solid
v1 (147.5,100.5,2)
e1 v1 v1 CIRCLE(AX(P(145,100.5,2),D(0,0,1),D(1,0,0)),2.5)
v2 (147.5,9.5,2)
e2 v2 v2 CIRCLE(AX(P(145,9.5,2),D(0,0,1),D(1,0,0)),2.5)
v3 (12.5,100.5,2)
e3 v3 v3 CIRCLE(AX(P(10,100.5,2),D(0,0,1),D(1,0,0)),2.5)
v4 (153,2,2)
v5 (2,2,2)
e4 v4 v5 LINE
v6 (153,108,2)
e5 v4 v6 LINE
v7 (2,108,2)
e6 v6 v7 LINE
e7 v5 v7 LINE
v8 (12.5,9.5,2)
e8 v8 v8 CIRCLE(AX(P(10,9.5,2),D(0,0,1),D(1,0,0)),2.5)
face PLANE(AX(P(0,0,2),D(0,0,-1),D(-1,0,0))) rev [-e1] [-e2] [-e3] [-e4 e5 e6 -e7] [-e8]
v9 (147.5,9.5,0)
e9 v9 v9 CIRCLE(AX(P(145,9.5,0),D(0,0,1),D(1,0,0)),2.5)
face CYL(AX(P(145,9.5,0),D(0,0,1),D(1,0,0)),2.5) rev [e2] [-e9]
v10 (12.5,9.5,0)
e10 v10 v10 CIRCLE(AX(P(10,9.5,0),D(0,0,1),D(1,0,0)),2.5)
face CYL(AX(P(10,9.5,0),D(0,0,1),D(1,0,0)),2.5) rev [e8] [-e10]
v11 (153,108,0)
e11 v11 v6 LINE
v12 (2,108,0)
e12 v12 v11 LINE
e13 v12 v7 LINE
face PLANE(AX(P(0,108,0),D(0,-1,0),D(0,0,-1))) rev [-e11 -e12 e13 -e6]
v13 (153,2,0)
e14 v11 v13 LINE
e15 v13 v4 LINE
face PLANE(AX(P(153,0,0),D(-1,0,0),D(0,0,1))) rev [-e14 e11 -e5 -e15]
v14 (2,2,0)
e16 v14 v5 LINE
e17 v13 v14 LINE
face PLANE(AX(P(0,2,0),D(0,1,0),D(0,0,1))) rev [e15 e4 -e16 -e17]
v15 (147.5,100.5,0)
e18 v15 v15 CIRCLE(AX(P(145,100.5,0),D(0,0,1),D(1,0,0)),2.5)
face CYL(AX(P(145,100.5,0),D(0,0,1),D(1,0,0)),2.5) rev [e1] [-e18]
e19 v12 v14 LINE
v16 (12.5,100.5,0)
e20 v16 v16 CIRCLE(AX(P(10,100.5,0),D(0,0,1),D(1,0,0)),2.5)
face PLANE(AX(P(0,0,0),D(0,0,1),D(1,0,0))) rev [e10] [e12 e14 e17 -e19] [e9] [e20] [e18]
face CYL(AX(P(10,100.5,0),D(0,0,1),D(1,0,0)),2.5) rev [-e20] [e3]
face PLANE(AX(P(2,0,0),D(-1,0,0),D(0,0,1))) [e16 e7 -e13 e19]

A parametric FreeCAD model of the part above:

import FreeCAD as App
import Part
import Sketcher

V = App.Vector
Q = App.Units.Quantity


def add_polygon(sketch, points):
    """Adds a closed chain of lines whose ends are joined by coincident constraints."""
    first, n = sketch.GeometryCount, len(points)
    for a, b in zip(points, points[1:] + points[:1]):
        sketch.addGeometry(Part.LineSegment(App.Vector(*a, 0), App.Vector(*b, 0)), False)
    for i in range(n):
        sketch.addConstraint(Sketcher.Constraint("Coincident", first + i, 2, first + (i + 1) % n, 1))

doc = App.newDocument("Part")
body = doc.addObject("PartDesign::Body", "Body")

# Sketch on XY plane
sketch1 = body.newObject("Sketcher::SketchObject", "Sketch")
sketch1.AttachmentSupport = (doc.getObject("XY_Plane"), [""])
sketch1.MapMode = "FlatFace"
add_polygon(sketch1, [(0, 110), (0, 0), (155, 0), (155, 110)])  # lines 0-3
sketch1.addConstraint(Sketcher.Constraint("Vertical", 0))
sketch1.addConstraint(Sketcher.Constraint("Horizontal", 1))
sketch1.addConstraint(Sketcher.Constraint("Vertical", 2))
sketch1.addConstraint(Sketcher.Constraint("Horizontal", 3))
sketch1.addConstraint(Sketcher.Constraint("Coincident", 0, 2, -1, 1))
sketch1.addConstraint(Sketcher.Constraint("DistanceX", 1, 1, 1, 2, Q("155 mm")))
sketch1.addConstraint(Sketcher.Constraint("DistanceY", 0, 2, 0, 1, Q("110 mm")))
pad1 = body.newObject("PartDesign::Pad", "Pad")
pad1.Profile = sketch1
pad1.Length = 80

# Sketch on XY plane
sketch2 = body.newObject("Sketcher::SketchObject", "Sketch001")
sketch2.AttachmentSupport = (doc.getObject("XY_Plane"), [""])
sketch2.MapMode = "FlatFace"
sketch2.AttachmentOffset = App.Placement(V(0, 0, 80), App.Rotation())
add_polygon(sketch2, [(2, 108), (2, 2), (153, 2), (153, 108)])  # lines 0-3
sketch2.addConstraint(Sketcher.Constraint("Vertical", 0))
sketch2.addConstraint(Sketcher.Constraint("Horizontal", 1))
sketch2.addConstraint(Sketcher.Constraint("Vertical", 2))
sketch2.addConstraint(Sketcher.Constraint("Horizontal", 3))
sketch2.addConstraint(Sketcher.Constraint("DistanceX", 1, 1, 1, 2, Q("151 mm")))
sketch2.addConstraint(Sketcher.Constraint("DistanceY", 0, 2, 0, 1, Q("106 mm")))
sketch2.addConstraint(Sketcher.Constraint("DistanceX", -1, 1, 0, 2, Q("2 mm")))
sketch2.addConstraint(Sketcher.Constraint("DistanceY", -1, 1, 0, 2, Q("2 mm")))
pocket1 = body.newObject("PartDesign::Pocket", "Pocket")
pocket1.Profile = sketch2
pocket1.Length = 78

# Sketch on XY plane
sketch3 = body.newObject("Sketcher::SketchObject", "Sketch002")
sketch3.AttachmentSupport = (doc.getObject("XY_Plane"), [""])
sketch3.MapMode = "FlatFace"
sketch3.AttachmentOffset = App.Placement(V(0, 0, 2), App.Rotation())
sketch3.addGeometry(Part.Circle(V(145, 100.5, 0), V(0, 0, 1), 2.5), False)
sketch3.addGeometry(Part.Circle(V(145, 9.5, 0), V(0, 0, 1), 2.5), False)
sketch3.addGeometry(Part.Circle(V(10, 9.5, 0), V(0, 0, 1), 2.5), False)
sketch3.addGeometry(Part.Circle(V(10, 100.5, 0), V(0, 0, 1), 2.5), False)
sketch3.addConstraint(Sketcher.Constraint("Equal", 0, 1))
sketch3.addConstraint(Sketcher.Constraint("Equal", 1, 2))
sketch3.addConstraint(Sketcher.Constraint("Equal", 2, 3))
sketch3.addConstraint(Sketcher.Constraint("Horizontal", 1, 3, 2, 3))
sketch3.addConstraint(Sketcher.Constraint("Horizontal", 0, 3, 3, 3))
sketch3.addConstraint(Sketcher.Constraint("Vertical", 0, 3, 1, 3))
sketch3.addConstraint(Sketcher.Constraint("Vertical", 2, 3, 3, 3))
sketch3.addConstraint(Sketcher.Constraint("Diameter", 0, Q("5 mm")))
sketch3.addConstraint(Sketcher.Constraint("DistanceX", -1, 1, 0, 3, Q("145 mm")))
sketch3.addConstraint(Sketcher.Constraint("DistanceX", -1, 1, 2, 3, Q("10 mm")))
sketch3.addConstraint(Sketcher.Constraint("DistanceY", 1, 3, 0, 3, Q("91 mm")))
sketch3.addConstraint(Sketcher.Constraint("DistanceY", -1, 1, 0, 3, Q("100.5 mm")))
pocket2 = body.newObject("PartDesign::Pocket", "Pocket001")
pocket2.Profile = sketch3
pocket2.Length = 2

# Sketch on XZ plane
sketch4 = body.newObject("Sketcher::SketchObject", "Sketch003")
sketch4.AttachmentSupport = (doc.getObject("XZ_Plane"), [""])
sketch4.MapMode = "FlatFace"
sketch4.AttachmentOffset = App.Placement(V(0, 0, -110), App.Rotation())
sketch4.addGeometry(Part.Circle(V(44.5, 20.1, 0), V(0, 0, 1), 1.6), False)
sketch4.addGeometry(Part.Circle(V(95.3, 17.1, 0), V(0, 0, 1), 1.6), False)
sketch4.addGeometry(Part.Circle(V(95.3, 62.9, 0), V(0, 0, 1), 1.6), False)
sketch4.addGeometry(Part.Circle(V(44.5, 47.6, 0), V(0, 0, 1), 1.6), False)
sketch4.addConstraint(Sketcher.Constraint("Equal", 0, 1))
sketch4.addConstraint(Sketcher.Constraint("Equal", 1, 2))
sketch4.addConstraint(Sketcher.Constraint("Equal", 2, 3))
sketch4.addConstraint(Sketcher.Constraint("Vertical", 1, 3, 2, 3))
sketch4.addConstraint(Sketcher.Constraint("Vertical", 0, 3, 3, 3))
sketch4.addConstraint(Sketcher.Constraint("Diameter", 0, Q("3.2 mm")))
sketch4.addConstraint(Sketcher.Constraint("DistanceX", 0, 3, 1, 3, Q("50.8 mm")))
sketch4.addConstraint(Sketcher.Constraint("DistanceX", -1, 1, 0, 3, Q("44.48 mm")))
sketch4.addConstraint(Sketcher.Constraint("DistanceY", -1, 1, 1, 3, Q("17.14 mm")))
sketch4.addConstraint(Sketcher.Constraint("DistanceY", -1, 1, 2, 3, Q("62.86 mm")))
sketch4.addConstraint(Sketcher.Constraint("DistanceY", -1, 1, 3, 3, Q("47.62 mm")))
sketch4.addConstraint(Sketcher.Constraint("DistanceY", -1, 1, 0, 3, Q("20.144504 mm")))
pocket3 = body.newObject("PartDesign::Pocket", "Pocket002")
pocket3.Profile = sketch4
pocket3.Length = 2
pocket3.Reversed = True

# Sketch on YZ plane
sketch5 = body.newObject("Sketcher::SketchObject", "Sketch004")
sketch5.AttachmentSupport = (doc.getObject("YZ_Plane"), [""])
sketch5.MapMode = "FlatFace"
sketch5.AttachmentOffset = App.Placement(V(0, 0, 155), App.Rotation())
add_polygon(sketch5, [(106, 54), (59, 54), (59, 26), (106, 26)])  # lines 0-3
sketch5.addConstraint(Sketcher.Constraint("Horizontal", 0))
sketch5.addConstraint(Sketcher.Constraint("Vertical", 1))
sketch5.addConstraint(Sketcher.Constraint("Horizontal", 2))
sketch5.addConstraint(Sketcher.Constraint("Vertical", 3))
sketch5.addConstraint(Sketcher.Constraint("DistanceX", 0, 2, 0, 1, Q("46.8 mm")))
sketch5.addConstraint(Sketcher.Constraint("DistanceY", 1, 2, 1, 1, Q("27.5 mm")))
sketch5.addConstraint(Sketcher.Constraint("DistanceX", -1, 1, 0, 2, Q("59.1 mm")))
sketch5.addConstraint(Sketcher.Constraint("DistanceY", -1, 1, 0, 2, Q("53.75 mm")))
pocket4 = body.newObject("PartDesign::Pocket", "Pocket003")
pocket4.Profile = sketch5
pocket4.Length = 2

# Sketch on YZ plane
sketch6 = body.newObject("Sketcher::SketchObject", "Sketch005")
sketch6.AttachmentSupport = (doc.getObject("YZ_Plane"), [""])
sketch6.MapMode = "FlatFace"
sketch6.AttachmentOffset = App.Placement(V(0, 0, 155), App.Rotation())
add_polygon(sketch6, [(55, 70), (2, 70), (2, 66), (55, 66)])  # lines 0-3
add_polygon(sketch6, [(55, 78), (2, 78), (2, 74), (55, 74)])  # lines 4-7
add_polygon(sketch6, [(55, 62), (2, 62), (2, 58), (55, 58)])  # lines 8-11
add_polygon(sketch6, [(55, 54), (2, 54), (2, 50), (55, 50)])  # lines 12-15
add_polygon(sketch6, [(55, 46), (2, 46), (2, 42), (55, 42)])  # lines 16-19
add_polygon(sketch6, [(55, 38), (2, 38), (2, 34), (55, 34)])  # lines 20-23
add_polygon(sketch6, [(55, 30), (2, 30), (2, 26), (55, 26)])  # lines 24-27
add_polygon(sketch6, [(55, 22), (2, 22), (2, 18), (55, 18)])  # lines 28-31
add_polygon(sketch6, [(55, 14), (2, 14), (2, 10), (55, 10)])  # lines 32-35
add_polygon(sketch6, [(55, 6), (2, 6), (2, 2), (55, 2)])  # lines 36-39
sketch6.addConstraint(Sketcher.Constraint("Horizontal", 0))
sketch6.addConstraint(Sketcher.Constraint("Vertical", 1))
sketch6.addConstraint(Sketcher.Constraint("Horizontal", 2))
sketch6.addConstraint(Sketcher.Constraint("Vertical", 3))
sketch6.addConstraint(Sketcher.Constraint("Horizontal", 4))
sketch6.addConstraint(Sketcher.Constraint("Vertical", 5))
sketch6.addConstraint(Sketcher.Constraint("Horizontal", 6))
sketch6.addConstraint(Sketcher.Constraint("Vertical", 7))
sketch6.addConstraint(Sketcher.Constraint("Horizontal", 8))
sketch6.addConstraint(Sketcher.Constraint("Vertical", 9))
sketch6.addConstraint(Sketcher.Constraint("Horizontal", 10))
sketch6.addConstraint(Sketcher.Constraint("Vertical", 11))
sketch6.addConstraint(Sketcher.Constraint("Horizontal", 12))
sketch6.addConstraint(Sketcher.Constraint("Vertical", 13))
sketch6.addConstraint(Sketcher.Constraint("Horizontal", 14))
sketch6.addConstraint(Sketcher.Constraint("Vertical", 15))
sketch6.addConstraint(Sketcher.Constraint("Horizontal", 16))
sketch6.addConstraint(Sketcher.Constraint("Vertical", 17))
sketch6.addConstraint(Sketcher.Constraint("Horizontal", 18))
sketch6.addConstraint(Sketcher.Constraint("Vertical", 19))
sketch6.addConstraint(Sketcher.Constraint("Horizontal", 20))
sketch6.addConstraint(Sketcher.Constraint("Vertical", 21))
sketch6.addConstraint(Sketcher.Constraint("Horizontal", 22))
sketch6.addConstraint(Sketcher.Constraint("Vertical", 23))
sketch6.addConstraint(Sketcher.Constraint("Horizontal", 24))
sketch6.addConstraint(Sketcher.Constraint("Vertical", 25))
sketch6.addConstraint(Sketcher.Constraint("Horizontal", 26))
sketch6.addConstraint(Sketcher.Constraint("Vertical", 27))
sketch6.addConstraint(Sketcher.Constraint("Horizontal", 28))
sketch6.addConstraint(Sketcher.Constraint("Vertical", 29))
sketch6.addConstraint(Sketcher.Constraint("Horizontal", 30))
sketch6.addConstraint(Sketcher.Constraint("Vertical", 31))
sketch6.addConstraint(Sketcher.Constraint("Horizontal", 32))
sketch6.addConstraint(Sketcher.Constraint("Vertical", 33))
sketch6.addConstraint(Sketcher.Constraint("Horizontal", 34))
sketch6.addConstraint(Sketcher.Constraint("Vertical", 35))
sketch6.addConstraint(Sketcher.Constraint("Horizontal", 36))
sketch6.addConstraint(Sketcher.Constraint("Vertical", 37))
sketch6.addConstraint(Sketcher.Constraint("Horizontal", 38))
sketch6.addConstraint(Sketcher.Constraint("Vertical", 39))
sketch6.addConstraint(Sketcher.Constraint("Vertical", 1, 2, 4, 2))
sketch6.addConstraint(Sketcher.Constraint("Vertical", 3, 2, 6, 2))
sketch6.addConstraint(Sketcher.Constraint("Vertical", 5, 2, 8, 2))
sketch6.addConstraint(Sketcher.Constraint("Vertical", 7, 2, 10, 2))
sketch6.addConstraint(Sketcher.Constraint("Vertical", 9, 2, 12, 2))
sketch6.addConstraint(Sketcher.Constraint("Vertical", 11, 2, 14, 2))
sketch6.addConstraint(Sketcher.Constraint("Vertical", 13, 2, 16, 2))
sketch6.addConstraint(Sketcher.Constraint("Vertical", 15, 2, 18, 2))
sketch6.addConstraint(Sketcher.Constraint("Vertical", 17, 2, 20, 2))
sketch6.addConstraint(Sketcher.Constraint("Vertical", 19, 2, 22, 2))
sketch6.addConstraint(Sketcher.Constraint("Vertical", 21, 2, 24, 2))
sketch6.addConstraint(Sketcher.Constraint("Vertical", 23, 2, 26, 2))
sketch6.addConstraint(Sketcher.Constraint("Vertical", 25, 2, 28, 2))
sketch6.addConstraint(Sketcher.Constraint("Vertical", 27, 2, 30, 2))
sketch6.addConstraint(Sketcher.Constraint("Vertical", 29, 2, 32, 2))
sketch6.addConstraint(Sketcher.Constraint("Vertical", 31, 2, 34, 2))
sketch6.addConstraint(Sketcher.Constraint("Vertical", 33, 2, 36, 2))
sketch6.addConstraint(Sketcher.Constraint("Vertical", 35, 2, 38, 2))
sketch6.addConstraint(Sketcher.Constraint("Equal", 3, 5))
sketch6.addConstraint(Sketcher.Constraint("Equal", 7, 9))
sketch6.addConstraint(Sketcher.Constraint("Equal", 11, 13))
sketch6.addConstraint(Sketcher.Constraint("Equal", 15, 17))
sketch6.addConstraint(Sketcher.Constraint("Equal", 19, 21))
sketch6.addConstraint(Sketcher.Constraint("Equal", 23, 25))
sketch6.addConstraint(Sketcher.Constraint("Equal", 27, 29))
sketch6.addConstraint(Sketcher.Constraint("Equal", 31, 33))
sketch6.addConstraint(Sketcher.Constraint("Equal", 35, 37))
sketch6.addConstraint(Sketcher.Constraint("DistanceX", 0, 2, 0, 1, Q("53 mm")))
sketch6.addConstraint(Sketcher.Constraint("DistanceY", 1, 2, 1, 1, Q("4 mm")))
sketch6.addConstraint(Sketcher.Constraint("DistanceX", -1, 1, 0, 2, Q("2 mm")))
sketch6.addConstraint(Sketcher.Constraint("DistanceY", -1, 1, 0, 2, Q("70 mm")))
sketch6.addConstraint(Sketcher.Constraint("DistanceY", -1, 1, 4, 2, Q("78 mm")))
sketch6.addConstraint(Sketcher.Constraint("DistanceY", -1, 1, 8, 2, Q("62 mm")))
sketch6.addConstraint(Sketcher.Constraint("DistanceY", -1, 1, 12, 2, Q("54 mm")))
sketch6.addConstraint(Sketcher.Constraint("DistanceY", -1, 1, 16, 2, Q("46 mm")))
sketch6.addConstraint(Sketcher.Constraint("DistanceY", -1, 1, 20, 2, Q("38 mm")))
sketch6.addConstraint(Sketcher.Constraint("DistanceY", -1, 1, 24, 2, Q("30 mm")))
sketch6.addConstraint(Sketcher.Constraint("DistanceY", -1, 1, 28, 2, Q("22 mm")))
sketch6.addConstraint(Sketcher.Constraint("DistanceY", -1, 1, 32, 2, Q("14 mm")))
sketch6.addConstraint(Sketcher.Constraint("DistanceY", -1, 1, 36, 2, Q("6 mm")))
pocket5 = body.newObject("PartDesign::Pocket", "Pocket004")
pocket5.Profile = sketch6
pocket5.Length = 2

# Sketch on XZ plane
sketch7 = body.newObject("Sketcher::SketchObject", "Sketch006")
sketch7.AttachmentSupport = (doc.getObject("XZ_Plane"), [""])
sketch7.MapMode = "FlatFace"
sketch7.AttachmentOffset = App.Placement(V(0, 0, -110), App.Rotation())
add_polygon(sketch7, [(113, 12), (113, 26), (127, 26), (127, 12)])  # lines 0-3
sketch7.addConstraint(Sketcher.Constraint("Vertical", 0))
sketch7.addConstraint(Sketcher.Constraint("Horizontal", 1))
sketch7.addConstraint(Sketcher.Constraint("Vertical", 2))
sketch7.addConstraint(Sketcher.Constraint("Horizontal", 3))
sketch7.addConstraint(Sketcher.Constraint("Equal", 3, 0))
sketch7.addConstraint(Sketcher.Constraint("DistanceX", 1, 1, 1, 2, Q("14 mm")))
sketch7.addConstraint(Sketcher.Constraint("DistanceX", -1, 1, 0, 2, Q("113 mm")))
sketch7.addConstraint(Sketcher.Constraint("DistanceY", -1, 1, 0, 2, Q("26 mm")))
pocket6 = body.newObject("PartDesign::Pocket", "Pocket005")
pocket6.Profile = sketch7
pocket6.Length = 2
pocket6.Reversed = True

# Sketch on YZ plane
sketch8 = body.newObject("Sketcher::SketchObject", "Sketch007")
sketch8.AttachmentSupport = (doc.getObject("YZ_Plane"), [""])
sketch8.MapMode = "FlatFace"
add_polygon(sketch8, [(90.6, 45.4), (19.4, 45.4), (19.4, 70.6), (90.6, 70.6)])  # lines 0-3
sketch8.addGeometry(Part.Circle(V(92.5, 42.5, 0), V(0, 0, 1), 1.2), False)  # 4
sketch8.addGeometry(Part.Circle(V(92.5, 73.5, 0), V(0, 0, 1), 1.2), False)  # 5
sketch8.addGeometry(Part.Circle(V(17.5, 42.5, 0), V(0, 0, 1), 1.2), False)  # 6
sketch8.addGeometry(Part.Circle(V(17.5, 73.5, 0), V(0, 0, 1), 1.2), False)  # 7
sketch8.addConstraint(Sketcher.Constraint("Horizontal", 0))
sketch8.addConstraint(Sketcher.Constraint("Vertical", 1))
sketch8.addConstraint(Sketcher.Constraint("Horizontal", 2))
sketch8.addConstraint(Sketcher.Constraint("Vertical", 3))
sketch8.addConstraint(Sketcher.Constraint("Equal", 4, 5))
sketch8.addConstraint(Sketcher.Constraint("Equal", 5, 6))
sketch8.addConstraint(Sketcher.Constraint("Equal", 6, 7))
sketch8.addConstraint(Sketcher.Constraint("Horizontal", 4, 3, 6, 3))
sketch8.addConstraint(Sketcher.Constraint("Horizontal", 5, 3, 7, 3))
sketch8.addConstraint(Sketcher.Constraint("Vertical", 4, 3, 5, 3))
sketch8.addConstraint(Sketcher.Constraint("Vertical", 6, 3, 7, 3))
sketch8.addConstraint(Sketcher.Constraint("Diameter", 4, Q("2.5 mm")))
sketch8.addConstraint(Sketcher.Constraint("DistanceX", 0, 2, 0, 1, Q("71.2 mm")))
sketch8.addConstraint(Sketcher.Constraint("DistanceY", 1, 1, 1, 2, Q("25.2 mm")))
sketch8.addConstraint(Sketcher.Constraint("DistanceY", 4, 3, 5, 3, Q("31 mm")))
sketch8.addConstraint(Sketcher.Constraint("DistanceX", 6, 3, 4, 3, Q("75 mm")))
sketch8.addConstraint(Sketcher.Constraint("DistanceX", -1, 1, 4, 3, Q("92.5 mm")))
sketch8.addConstraint(Sketcher.Constraint("DistanceY", -1, 1, 4, 3, Q("42.5 mm")))
sketch8.addConstraint(Sketcher.Constraint("DistanceX", -1, 1, 0, 2, Q("19.4 mm")))
sketch8.addConstraint(Sketcher.Constraint("DistanceY", -1, 1, 0, 2, Q("45.4 mm")))
pocket7 = body.newObject("PartDesign::Pocket", "Pocket006")
pocket7.Profile = sketch8
pocket7.Length = 2
pocket7.Reversed = True

# Sketch on YZ plane
sketch9 = body.newObject("Sketcher::SketchObject", "Sketch008")
sketch9.AttachmentSupport = (doc.getObject("YZ_Plane"), [""])
sketch9.MapMode = "FlatFace"
sketch9.addGeometry(Part.Circle(V(55, 20, 0), V(0, 0, 1), 2.5), False)
sketch9.addGeometry(Part.Circle(V(40, 20, 0), V(0, 0, 1), 2.5), False)
sketch9.addGeometry(Part.Circle(V(25, 20, 0), V(0, 0, 1), 2.5), False)
sketch9.addGeometry(Part.Circle(V(82.5, 20, 0), V(0, 0, 1), 4.5), False)
sketch9.addConstraint(Sketcher.Constraint("Equal", 0, 1))
sketch9.addConstraint(Sketcher.Constraint("Equal", 1, 2))
sketch9.addConstraint(Sketcher.Constraint("Horizontal", 0, 3, 1, 3))
sketch9.addConstraint(Sketcher.Constraint("Horizontal", 1, 3, 2, 3))
sketch9.addConstraint(Sketcher.Constraint("Horizontal", 2, 3, 3, 3))
sketch9.addConstraint(Sketcher.Constraint("Diameter", 0, Q("5 mm")))
sketch9.addConstraint(Sketcher.Constraint("Diameter", 3, Q("9 mm")))
sketch9.addConstraint(Sketcher.Constraint("DistanceX", -1, 1, 0, 3, Q("55 mm")))
sketch9.addConstraint(Sketcher.Constraint("DistanceY", -1, 1, 0, 3, Q("20 mm")))
sketch9.addConstraint(Sketcher.Constraint("DistanceX", -1, 1, 1, 3, Q("40 mm")))
sketch9.addConstraint(Sketcher.Constraint("DistanceX", -1, 1, 2, 3, Q("25 mm")))
sketch9.addConstraint(Sketcher.Constraint("DistanceX", -1, 1, 3, 3, Q("82.5 mm")))
pocket8 = body.newObject("PartDesign::Pocket", "Pocket007")
pocket8.Profile = sketch9
pocket8.Length = 2
pocket8.Reversed = True

# Sketch on XY plane
sketch10 = body.newObject("Sketcher::SketchObject", "Sketch009")
sketch10.AttachmentSupport = (doc.getObject("XY_Plane"), [""])
sketch10.MapMode = "FlatFace"
sketch10.AttachmentOffset = App.Placement(V(0, 0, 80), App.Rotation())
add_polygon(sketch10, [(0, 110), (0, 0), (155, 0), (155, 110)])  # lines 0-3
add_polygon(sketch10, [(2, 2), (2, 108), (153, 108), (153, 2)])  # lines 4-7
sketch10.addConstraint(Sketcher.Constraint("Vertical", 0))
sketch10.addConstraint(Sketcher.Constraint("Horizontal", 1))
sketch10.addConstraint(Sketcher.Constraint("Vertical", 2))
sketch10.addConstraint(Sketcher.Constraint("Horizontal", 3))
sketch10.addConstraint(Sketcher.Constraint("Vertical", 4))
sketch10.addConstraint(Sketcher.Constraint("Horizontal", 5))
sketch10.addConstraint(Sketcher.Constraint("Vertical", 6))
sketch10.addConstraint(Sketcher.Constraint("Horizontal", 7))
sketch10.addConstraint(Sketcher.Constraint("Coincident", 0, 2, -1, 1))
sketch10.addConstraint(Sketcher.Constraint("DistanceX", 1, 1, 1, 2, Q("155 mm")))
sketch10.addConstraint(Sketcher.Constraint("DistanceX", 5, 1, 5, 2, Q("151 mm")))
sketch10.addConstraint(Sketcher.Constraint("DistanceY", 0, 2, 0, 1, Q("110 mm")))
sketch10.addConstraint(Sketcher.Constraint("DistanceY", 4, 1, 4, 2, Q("106 mm")))
sketch10.addConstraint(Sketcher.Constraint("DistanceX", -1, 1, 4, 2, Q("2 mm")))
sketch10.addConstraint(Sketcher.Constraint("DistanceY", -1, 1, 4, 2, Q("108 mm")))
pocket9 = body.newObject("PartDesign::Pocket", "Pocket008")
pocket9.Profile = sketch10
pocket9.Length = 80

doc.recompute()
